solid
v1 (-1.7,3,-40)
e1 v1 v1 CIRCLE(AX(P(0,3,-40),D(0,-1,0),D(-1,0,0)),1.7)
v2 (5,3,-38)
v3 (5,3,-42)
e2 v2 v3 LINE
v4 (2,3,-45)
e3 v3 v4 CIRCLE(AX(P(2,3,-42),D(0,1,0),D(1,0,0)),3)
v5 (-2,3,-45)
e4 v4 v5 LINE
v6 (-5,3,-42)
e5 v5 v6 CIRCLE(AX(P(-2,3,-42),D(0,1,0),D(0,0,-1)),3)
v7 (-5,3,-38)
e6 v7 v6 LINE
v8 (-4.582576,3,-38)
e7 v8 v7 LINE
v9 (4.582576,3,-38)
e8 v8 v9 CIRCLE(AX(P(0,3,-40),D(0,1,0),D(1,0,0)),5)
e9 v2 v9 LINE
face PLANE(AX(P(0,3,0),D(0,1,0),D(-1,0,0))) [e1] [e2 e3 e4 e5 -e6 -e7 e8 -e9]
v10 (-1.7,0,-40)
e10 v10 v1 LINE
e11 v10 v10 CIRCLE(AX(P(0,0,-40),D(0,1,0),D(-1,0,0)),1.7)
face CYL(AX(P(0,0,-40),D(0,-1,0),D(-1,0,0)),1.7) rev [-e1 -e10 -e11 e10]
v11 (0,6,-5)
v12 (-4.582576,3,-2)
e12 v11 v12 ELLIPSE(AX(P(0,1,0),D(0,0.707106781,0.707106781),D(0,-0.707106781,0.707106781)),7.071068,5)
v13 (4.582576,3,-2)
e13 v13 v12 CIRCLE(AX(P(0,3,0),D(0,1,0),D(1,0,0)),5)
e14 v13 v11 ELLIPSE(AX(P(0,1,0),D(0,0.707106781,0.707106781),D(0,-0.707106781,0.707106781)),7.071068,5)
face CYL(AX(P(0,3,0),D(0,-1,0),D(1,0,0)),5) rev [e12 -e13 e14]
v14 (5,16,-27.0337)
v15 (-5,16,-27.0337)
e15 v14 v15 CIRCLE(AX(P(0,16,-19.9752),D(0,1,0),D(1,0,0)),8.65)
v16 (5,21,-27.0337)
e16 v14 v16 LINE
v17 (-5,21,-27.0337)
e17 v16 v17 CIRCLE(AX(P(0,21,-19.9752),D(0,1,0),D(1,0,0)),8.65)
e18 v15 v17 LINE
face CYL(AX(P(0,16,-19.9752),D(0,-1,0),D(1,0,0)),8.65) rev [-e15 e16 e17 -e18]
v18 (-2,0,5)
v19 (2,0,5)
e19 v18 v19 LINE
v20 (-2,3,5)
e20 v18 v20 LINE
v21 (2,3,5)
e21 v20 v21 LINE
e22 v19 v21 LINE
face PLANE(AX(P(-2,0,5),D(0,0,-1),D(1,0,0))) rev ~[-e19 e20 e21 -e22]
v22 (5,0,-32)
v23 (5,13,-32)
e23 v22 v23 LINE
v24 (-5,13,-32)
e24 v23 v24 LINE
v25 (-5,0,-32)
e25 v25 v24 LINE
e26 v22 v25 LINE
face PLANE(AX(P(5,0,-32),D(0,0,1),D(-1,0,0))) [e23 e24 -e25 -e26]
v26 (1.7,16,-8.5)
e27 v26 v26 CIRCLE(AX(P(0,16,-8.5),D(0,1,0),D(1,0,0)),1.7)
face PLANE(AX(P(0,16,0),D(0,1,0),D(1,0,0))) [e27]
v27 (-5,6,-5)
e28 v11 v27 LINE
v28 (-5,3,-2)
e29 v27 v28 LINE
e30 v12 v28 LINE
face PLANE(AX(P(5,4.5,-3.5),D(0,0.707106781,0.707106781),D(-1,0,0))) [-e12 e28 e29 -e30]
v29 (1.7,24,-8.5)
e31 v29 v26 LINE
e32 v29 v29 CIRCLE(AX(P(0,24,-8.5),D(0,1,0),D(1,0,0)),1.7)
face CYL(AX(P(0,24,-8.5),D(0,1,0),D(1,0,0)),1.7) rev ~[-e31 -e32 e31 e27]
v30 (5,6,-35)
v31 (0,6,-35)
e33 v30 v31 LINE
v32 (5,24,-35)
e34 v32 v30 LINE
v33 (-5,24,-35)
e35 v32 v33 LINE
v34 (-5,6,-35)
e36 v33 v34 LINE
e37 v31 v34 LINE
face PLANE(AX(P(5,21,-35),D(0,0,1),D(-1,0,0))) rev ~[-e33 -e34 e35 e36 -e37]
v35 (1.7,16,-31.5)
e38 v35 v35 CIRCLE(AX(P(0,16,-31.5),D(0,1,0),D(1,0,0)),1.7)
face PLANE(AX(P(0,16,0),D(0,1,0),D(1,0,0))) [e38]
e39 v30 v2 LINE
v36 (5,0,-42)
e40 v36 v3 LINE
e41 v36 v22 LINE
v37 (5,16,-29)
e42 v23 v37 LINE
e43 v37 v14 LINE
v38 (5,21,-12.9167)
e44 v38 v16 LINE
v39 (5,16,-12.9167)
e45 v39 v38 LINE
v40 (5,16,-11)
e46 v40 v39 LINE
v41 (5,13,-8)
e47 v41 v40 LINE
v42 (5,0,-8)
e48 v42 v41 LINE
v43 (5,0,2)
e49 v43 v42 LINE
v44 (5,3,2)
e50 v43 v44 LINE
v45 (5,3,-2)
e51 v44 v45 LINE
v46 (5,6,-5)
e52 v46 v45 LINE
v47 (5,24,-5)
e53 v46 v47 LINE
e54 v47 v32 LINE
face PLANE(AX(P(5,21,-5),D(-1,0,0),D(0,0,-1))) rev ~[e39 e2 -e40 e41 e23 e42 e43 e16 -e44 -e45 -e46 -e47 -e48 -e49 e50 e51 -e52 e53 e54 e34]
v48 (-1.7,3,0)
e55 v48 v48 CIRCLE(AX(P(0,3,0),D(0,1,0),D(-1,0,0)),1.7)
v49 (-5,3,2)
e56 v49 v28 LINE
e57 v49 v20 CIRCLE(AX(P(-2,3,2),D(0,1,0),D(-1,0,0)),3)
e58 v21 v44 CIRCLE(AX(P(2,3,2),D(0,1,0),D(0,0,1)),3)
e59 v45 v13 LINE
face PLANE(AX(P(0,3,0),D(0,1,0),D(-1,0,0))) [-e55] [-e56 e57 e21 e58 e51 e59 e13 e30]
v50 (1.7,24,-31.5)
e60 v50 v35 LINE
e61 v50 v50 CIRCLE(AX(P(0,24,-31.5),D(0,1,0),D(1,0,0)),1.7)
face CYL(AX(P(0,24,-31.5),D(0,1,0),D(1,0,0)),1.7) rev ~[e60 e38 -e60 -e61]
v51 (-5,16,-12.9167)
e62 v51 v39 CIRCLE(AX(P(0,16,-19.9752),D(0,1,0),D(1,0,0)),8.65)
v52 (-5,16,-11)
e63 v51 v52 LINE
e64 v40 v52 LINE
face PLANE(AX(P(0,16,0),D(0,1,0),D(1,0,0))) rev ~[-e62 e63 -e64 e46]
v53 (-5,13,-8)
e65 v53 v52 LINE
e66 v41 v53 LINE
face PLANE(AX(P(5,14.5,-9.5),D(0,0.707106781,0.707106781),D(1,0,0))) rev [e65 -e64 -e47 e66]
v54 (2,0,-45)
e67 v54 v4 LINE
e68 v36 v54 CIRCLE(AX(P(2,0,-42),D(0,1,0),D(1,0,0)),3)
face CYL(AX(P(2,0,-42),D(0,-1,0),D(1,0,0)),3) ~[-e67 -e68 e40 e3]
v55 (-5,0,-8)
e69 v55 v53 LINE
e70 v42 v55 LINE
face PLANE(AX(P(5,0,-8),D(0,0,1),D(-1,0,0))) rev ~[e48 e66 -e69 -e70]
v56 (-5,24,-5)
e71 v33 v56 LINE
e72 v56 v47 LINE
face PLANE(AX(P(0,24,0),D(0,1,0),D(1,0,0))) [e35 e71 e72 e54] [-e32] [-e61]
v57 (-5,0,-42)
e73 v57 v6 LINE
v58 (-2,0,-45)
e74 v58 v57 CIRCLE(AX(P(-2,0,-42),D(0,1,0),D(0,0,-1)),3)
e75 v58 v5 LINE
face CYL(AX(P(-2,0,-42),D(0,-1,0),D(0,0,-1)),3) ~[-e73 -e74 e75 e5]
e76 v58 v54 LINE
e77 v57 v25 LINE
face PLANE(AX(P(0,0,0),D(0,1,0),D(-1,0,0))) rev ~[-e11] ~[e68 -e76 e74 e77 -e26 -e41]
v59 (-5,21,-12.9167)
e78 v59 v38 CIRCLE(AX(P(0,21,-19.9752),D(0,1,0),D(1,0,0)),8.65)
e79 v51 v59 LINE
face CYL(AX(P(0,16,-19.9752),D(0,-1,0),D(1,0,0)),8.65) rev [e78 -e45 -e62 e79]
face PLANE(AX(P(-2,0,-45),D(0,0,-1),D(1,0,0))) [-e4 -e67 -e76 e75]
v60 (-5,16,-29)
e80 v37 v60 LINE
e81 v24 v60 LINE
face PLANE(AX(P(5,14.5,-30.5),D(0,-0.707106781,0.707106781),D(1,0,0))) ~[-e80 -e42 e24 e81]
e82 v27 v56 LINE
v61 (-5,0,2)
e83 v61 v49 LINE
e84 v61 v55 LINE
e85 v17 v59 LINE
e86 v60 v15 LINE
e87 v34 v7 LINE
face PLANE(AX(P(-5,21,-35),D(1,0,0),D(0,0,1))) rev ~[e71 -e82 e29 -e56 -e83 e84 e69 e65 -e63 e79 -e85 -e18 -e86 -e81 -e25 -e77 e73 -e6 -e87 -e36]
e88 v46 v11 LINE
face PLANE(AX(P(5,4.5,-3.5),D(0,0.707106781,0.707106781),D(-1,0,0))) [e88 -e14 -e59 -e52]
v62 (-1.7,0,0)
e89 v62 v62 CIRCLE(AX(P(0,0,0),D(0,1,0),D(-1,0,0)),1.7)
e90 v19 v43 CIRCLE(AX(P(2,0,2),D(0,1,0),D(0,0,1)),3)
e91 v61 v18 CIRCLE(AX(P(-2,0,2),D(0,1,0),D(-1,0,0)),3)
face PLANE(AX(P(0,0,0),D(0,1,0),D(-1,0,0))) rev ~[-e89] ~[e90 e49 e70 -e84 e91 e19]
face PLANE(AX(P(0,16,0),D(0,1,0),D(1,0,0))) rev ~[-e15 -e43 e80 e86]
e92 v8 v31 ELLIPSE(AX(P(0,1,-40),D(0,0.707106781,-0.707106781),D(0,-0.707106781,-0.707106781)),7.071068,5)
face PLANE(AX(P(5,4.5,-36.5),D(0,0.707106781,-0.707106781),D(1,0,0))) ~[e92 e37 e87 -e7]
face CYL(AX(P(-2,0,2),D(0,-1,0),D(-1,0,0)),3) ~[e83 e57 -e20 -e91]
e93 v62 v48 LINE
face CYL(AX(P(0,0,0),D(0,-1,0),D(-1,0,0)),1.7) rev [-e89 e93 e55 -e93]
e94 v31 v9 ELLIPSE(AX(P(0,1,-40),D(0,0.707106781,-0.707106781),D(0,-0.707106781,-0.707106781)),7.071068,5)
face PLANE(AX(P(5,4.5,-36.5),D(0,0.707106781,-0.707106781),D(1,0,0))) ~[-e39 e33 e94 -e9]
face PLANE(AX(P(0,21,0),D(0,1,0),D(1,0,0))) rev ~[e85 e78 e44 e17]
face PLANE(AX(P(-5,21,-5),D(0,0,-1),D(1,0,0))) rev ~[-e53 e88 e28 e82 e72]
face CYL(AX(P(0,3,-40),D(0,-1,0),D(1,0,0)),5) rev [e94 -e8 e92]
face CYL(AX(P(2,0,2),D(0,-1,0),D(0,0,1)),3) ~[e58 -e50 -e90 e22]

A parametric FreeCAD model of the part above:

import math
import FreeCAD as App
import Part
import Sketcher
Q = App.Units.Quantity


def edges_at(feature, points):
    """Names of the edges that pass closest to the given points."""
    edges = feature.Shape.Edges
    near = lambda p: min(range(len(edges)), key=lambda i: edges[i].distToShape(Part.Vertex(*p))[0])
    return sorted({f"Edge{near(p) + 1}" for p in points})

doc = App.newDocument("Part")
body = doc.addObject("PartDesign::Body", "Body")
body.AllowCompound = True

sketch1 = doc.addObject("Sketcher::SketchObject", "Sketch")
body.addObject(sketch1)
sketch1.AttachmentSupport = (doc.XZ_Plane, [""])
sketch1.MapMode = "FlatFace"
sketch1.addGeometry(Part.LineSegment(App.Vector(5, 2, 0), App.Vector(5, -5, 0)), False)
sketch1.addGeometry(Part.LineSegment(App.Vector(5, -5, 0), App.Vector(-5, -5, 0)), False)
sketch1.addGeometry(Part.LineSegment(App.Vector(-5, -5, 0), App.Vector(-5, 2, 0)), False)
sketch1.addGeometry(Part.ArcOfCircle(Part.Circle(App.Vector(-2, 2, 0), App.Vector(0, 0, 1), 3), math.radians(90), math.radians(180)), False)
sketch1.addGeometry(Part.LineSegment(App.Vector(-2, 5, 0), App.Vector(2, 5, 0)), False)
sketch1.addGeometry(Part.ArcOfCircle(Part.Circle(App.Vector(2, 2, 0), App.Vector(0, 0, 1), 3), math.radians(0), math.radians(90)), False)
sketch1.addGeometry(Part.Circle(App.Vector(0, 0, 0), App.Vector(0, 0, 1), 1.7), False)
sketch1.addGeometry(Part.LineSegment(App.Vector(-5, -35, 0), App.Vector(5, -35, 0)), False)
sketch1.addGeometry(Part.LineSegment(App.Vector(5, -35, 0), App.Vector(5, -42, 0)), False)
sketch1.addGeometry(Part.ArcOfCircle(Part.Circle(App.Vector(2, -42, 0), App.Vector(0, 0, 1), 3), math.radians(-90), math.radians(0)), False)
sketch1.addGeometry(Part.LineSegment(App.Vector(2, -45, 0), App.Vector(-2, -45, 0)), False)
sketch1.addGeometry(Part.ArcOfCircle(Part.Circle(App.Vector(-2, -42, 0), App.Vector(0, 0, 1), 3), math.radians(180), math.radians(270)), False)
sketch1.addGeometry(Part.LineSegment(App.Vector(-5, -42, 0), App.Vector(-5, -35, 0)), False)
sketch1.addGeometry(Part.Circle(App.Vector(0, -40, 0), App.Vector(0, 0, 1), 1.7), False)
sketch1.addConstraint(Sketcher.Constraint("Coincident", 0, 2, 1, 1))
sketch1.addConstraint(Sketcher.Constraint("Coincident", 1, 2, 2, 1))
sketch1.addConstraint(Sketcher.Constraint("Tangent", 2, 2, 3, 2))
sketch1.addConstraint(Sketcher.Constraint("Tangent", 3, 1, 4, 1))
sketch1.addConstraint(Sketcher.Constraint("Tangent", 4, 2, 5, 2))
sketch1.addConstraint(Sketcher.Constraint("Tangent", 5, 1, 0, 1))
sketch1.addConstraint(Sketcher.Constraint("Coincident", 7, 2, 8, 1))
sketch1.addConstraint(Sketcher.Constraint("Tangent", 8, 2, 9, 2))
sketch1.addConstraint(Sketcher.Constraint("Tangent", 9, 1, 10, 1))
sketch1.addConstraint(Sketcher.Constraint("Tangent", 10, 2, 11, 2))
sketch1.addConstraint(Sketcher.Constraint("Tangent", 11, 1, 12, 1))
sketch1.addConstraint(Sketcher.Constraint("Coincident", 12, 2, 7, 1))
sketch1.addConstraint(Sketcher.Constraint("Vertical", 0))
sketch1.addConstraint(Sketcher.Constraint("Horizontal", 1))
sketch1.addConstraint(Sketcher.Constraint("Vertical", 2))
sketch1.addConstraint(Sketcher.Constraint("Horizontal", 4))
sketch1.addConstraint(Sketcher.Constraint("Horizontal", 7))
sketch1.addConstraint(Sketcher.Constraint("Vertical", 8))
sketch1.addConstraint(Sketcher.Constraint("Horizontal", 10))
sketch1.addConstraint(Sketcher.Constraint("Vertical", 12))
sketch1.addConstraint(Sketcher.Constraint("Coincident", 6, 3, -1, 1))
sketch1.addConstraint(Sketcher.Constraint("Equal", 3, 5))
sketch1.addConstraint(Sketcher.Constraint("Equal", 5, 9))
sketch1.addConstraint(Sketcher.Constraint("Equal", 9, 11))
sketch1.addConstraint(Sketcher.Constraint("Equal", 6, 13))
sketch1.addConstraint(Sketcher.Constraint("PointOnObject", 13, 3, -2))
sketch1.addConstraint(Sketcher.Constraint("Vertical", 5, 3, 9, 3))
sketch1.addConstraint(Sketcher.Constraint("Vertical", 3, 3, 11, 3))
sketch1.addConstraint(Sketcher.Constraint("Equal", 2, 8))
sketch1.addConstraint(Sketcher.Constraint("Radius", 3, Q("3 mm")))
sketch1.addConstraint(Sketcher.Constraint("Diameter", 6, Q("3.4 mm")))
sketch1.addConstraint(Sketcher.Constraint("DistanceX", 1, 2, 1, 1, Q("10 mm")))
sketch1.addConstraint(Sketcher.Constraint("DistanceY", 13, 3, -1, 1, Q("40 mm")))
sketch1.addConstraint(Sketcher.Constraint("DistanceY", 1, 2, 3, 1, Q("10 mm")))
sketch1.addConstraint(Sketcher.Constraint("DistanceX", 3, 3, -1, 1, Q("2 mm")))
sketch1.addConstraint(Sketcher.Constraint("DistanceY", -1, 1, 3, 3, Q("2 mm")))
sketch1.addConstraint(Sketcher.Constraint("DistanceY", 9, 3, -1, 1, Q("42 mm")))
pad1 = doc.addObject("PartDesign::Pad", "Pad")
body.addObject(pad1)
pad1.Profile = sketch1
pad1.Length = 3
pad1.Reversed = True

sketch2 = doc.addObject("Sketcher::SketchObject", "Sketch001")
body.addObject(sketch2)
sketch2.AttachmentSupport = (doc.XZ_Plane, [""])
sketch2.MapMode = "FlatFace"
sketch2.addGeometry(Part.LineSegment(App.Vector(-5, -5, 0), App.Vector(5, -5, 0)), False)
sketch2.addGeometry(Part.LineSegment(App.Vector(5, -5, 0), App.Vector(5, -8, 0)), False)
sketch2.addGeometry(Part.LineSegment(App.Vector(5, -8, 0), App.Vector(-5, -8, 0)), False)
sketch2.addGeometry(Part.LineSegment(App.Vector(-5, -8, 0), App.Vector(-5, -5, 0)), False)
sketch2.addGeometry(Part.LineSegment(App.Vector(-5, -32, 0), App.Vector(5, -32, 0)), False)
sketch2.addGeometry(Part.LineSegment(App.Vector(5, -32, 0), App.Vector(5, -35, 0)), False)
sketch2.addGeometry(Part.LineSegment(App.Vector(5, -35, 0), App.Vector(-5, -35, 0)), False)
sketch2.addGeometry(Part.LineSegment(App.Vector(-5, -35, 0), App.Vector(-5, -32, 0)), False)
sketch2.addConstraint(Sketcher.Constraint("Coincident", 0, 2, 1, 1))
sketch2.addConstraint(Sketcher.Constraint("Coincident", 1, 2, 2, 1))
sketch2.addConstraint(Sketcher.Constraint("Coincident", 2, 2, 3, 1))
sketch2.addConstraint(Sketcher.Constraint("Coincident", 3, 2, 0, 1))
sketch2.addConstraint(Sketcher.Constraint("Coincident", 4, 2, 5, 1))
sketch2.addConstraint(Sketcher.Constraint("Coincident", 5, 2, 6, 1))
sketch2.addConstraint(Sketcher.Constraint("Coincident", 6, 2, 7, 1))
sketch2.addConstraint(Sketcher.Constraint("Coincident", 7, 2, 4, 1))
sketch2.addConstraint(Sketcher.Constraint("Horizontal", 0))
sketch2.addConstraint(Sketcher.Constraint("Vertical", 1))
sketch2.addConstraint(Sketcher.Constraint("Horizontal", 2))
sketch2.addConstraint(Sketcher.Constraint("Vertical", 3))
sketch2.addConstraint(Sketcher.Constraint("Horizontal", 4))
sketch2.addConstraint(Sketcher.Constraint("Vertical", 5))
sketch2.addConstraint(Sketcher.Constraint("Horizontal", 6))
sketch2.addConstraint(Sketcher.Constraint("Vertical", 7))
sketch2.addConstraint(Sketcher.Constraint("Vertical", 1, 2, 4, 2))
sketch2.addConstraint(Sketcher.Constraint("Vertical", 3, 2, 6, 2))
sketch2.addConstraint(Sketcher.Constraint("Equal", 3, 5))
sketch2.addConstraint(Sketcher.Constraint("DistanceX", 0, 1, 0, 2, Q("10 mm")))
sketch2.addConstraint(Sketcher.Constraint("DistanceY", 1, 2, 1, 1, Q("3 mm")))
sketch2.addConstraint(Sketcher.Constraint("DistanceX", -1, 1, 0, 2, Q("5 mm")))
sketch2.addConstraint(Sketcher.Constraint("DistanceY", 0, 2, -1, 1, Q("5 mm")))
sketch2.addConstraint(Sketcher.Constraint("DistanceY", 4, 2, -1, 1, Q("32 mm")))
pad2 = doc.addObject("PartDesign::Pad", "Pad001")
body.addObject(pad2)
pad2.Profile = sketch2
pad2.Length = 16
pad2.Reversed = True

sketch3 = doc.addObject("Sketcher::SketchObject", "Sketch002")
body.addObject(sketch3)
sketch3.AttachmentSupport = (doc.XZ_Plane, [""])
sketch3.MapMode = "FlatFace"
sketch3.AttachmentOffset = App.Placement(App.Vector(0, 0, -16), App.Rotation())
sketch3.addGeometry(Part.LineSegment(App.Vector(-5, -35, 0), App.Vector(-5, -27, 0)), False)
sketch3.addGeometry(Part.ArcOfCircle(Part.Circle(App.Vector(0, -20, 0), App.Vector(0, 0, 1), 9), math.radians(-125), math.radians(-55)), False)
sketch3.addGeometry(Part.LineSegment(App.Vector(5, -27, 0), App.Vector(5, -35, 0)), False)
sketch3.addGeometry(Part.LineSegment(App.Vector(5, -35, 0), App.Vector(-5, -35, 0)), False)
sketch3.addGeometry(Part.ArcOfCircle(Part.Circle(App.Vector(0, -20, 0), App.Vector(0, 0, 1), 9), math.radians(55), math.radians(125)), False)
sketch3.addGeometry(Part.LineSegment(App.Vector(-5, -13, 0), App.Vector(-5, -5, 0)), False)
sketch3.addGeometry(Part.LineSegment(App.Vector(-5, -5, 0), App.Vector(5, -5, 0)), False)
sketch3.addGeometry(Part.LineSegment(App.Vector(5, -5, 0), App.Vector(5, -13, 0)), False)
sketch3.addConstraint(Sketcher.Constraint("Coincident", 0, 2, 1, 1))
sketch3.addConstraint(Sketcher.Constraint("Coincident", 1, 2, 2, 1))
sketch3.addConstraint(Sketcher.Constraint("Coincident", 2, 2, 3, 1))
sketch3.addConstraint(Sketcher.Constraint("Coincident", 3, 2, 0, 1))
sketch3.addConstraint(Sketcher.Constraint("Coincident", 4, 2, 5, 1))
sketch3.addConstraint(Sketcher.Constraint("Coincident", 5, 2, 6, 1))
sketch3.addConstraint(Sketcher.Constraint("Coincident", 6, 2, 7, 1))
sketch3.addConstraint(Sketcher.Constraint("Coincident", 7, 2, 4, 1))
sketch3.addConstraint(Sketcher.Constraint("Vertical", 0))
sketch3.addConstraint(Sketcher.Constraint("Vertical", 2))
sketch3.addConstraint(Sketcher.Constraint("Horizontal", 3))
sketch3.addConstraint(Sketcher.Constraint("Vertical", 5))
sketch3.addConstraint(Sketcher.Constraint("Horizontal", 6))
sketch3.addConstraint(Sketcher.Constraint("Vertical", 7))
sketch3.addConstraint(Sketcher.Constraint("Coincident", 4, 3, 1, 3))
sketch3.addConstraint(Sketcher.Constraint("Equal", 1, 4))
sketch3.addConstraint(Sketcher.Constraint("Symmetric", 0, 2, 1, 2, -2))
sketch3.addConstraint(Sketcher.Constraint("Horizontal", 4, 2, 7, 2))
sketch3.addConstraint(Sketcher.Constraint("Vertical", 3, 2, 4, 2))
sketch3.addConstraint(Sketcher.Constraint("Radius", 1, Q("8.65 mm")))
sketch3.addConstraint(Sketcher.Constraint("DistanceX", 3, 2, 3, 1, Q("10 mm")))
sketch3.addConstraint(Sketcher.Constraint("DistanceY", 2, 2, -1, 1, Q("35 mm")))
sketch3.addConstraint(Sketcher.Constraint("DistanceY", 5, 2, -1, 1, Q("5 mm")))
sketch3.addConstraint(Sketcher.Constraint("DistanceY", 0, 1, 0, 2, Q("7.9663 mm")))
pad3 = doc.addObject("PartDesign::Pad", "Pad002")
body.addObject(pad3)
pad3.Profile = sketch3
pad3.Length = 5
pad3.Reversed = True

sketch4 = doc.addObject("Sketcher::SketchObject", "Sketch003")
body.addObject(sketch4)
sketch4.AttachmentSupport = (doc.XZ_Plane, [""])
sketch4.MapMode = "FlatFace"
sketch4.AttachmentOffset = App.Placement(App.Vector(0, 0, -21), App.Rotation())
sketch4.addGeometry(Part.LineSegment(App.Vector(-5, -35, 0), App.Vector(-5, -5, 0)), False)
sketch4.addGeometry(Part.LineSegment(App.Vector(-5, -5, 0), App.Vector(5, -5, 0)), False)
sketch4.addGeometry(Part.LineSegment(App.Vector(5, -5, 0), App.Vector(5, -35, 0)), False)
sketch4.addGeometry(Part.LineSegment(App.Vector(5, -35, 0), App.Vector(-5, -35, 0)), False)
sketch4.addConstraint(Sketcher.Constraint("Coincident", 0, 2, 1, 1))
sketch4.addConstraint(Sketcher.Constraint("Coincident", 1, 2, 2, 1))
sketch4.addConstraint(Sketcher.Constraint("Coincident", 2, 2, 3, 1))
sketch4.addConstraint(Sketcher.Constraint("Coincident", 3, 2, 0, 1))
sketch4.addConstraint(Sketcher.Constraint("Vertical", 0))
sketch4.addConstraint(Sketcher.Constraint("Horizontal", 1))
sketch4.addConstraint(Sketcher.Constraint("Vertical", 2))
sketch4.addConstraint(Sketcher.Constraint("Horizontal", 3))
sketch4.addConstraint(Sketcher.Constraint("DistanceX", 1, 1, 1, 2, Q("10 mm")))
sketch4.addConstraint(Sketcher.Constraint("DistanceY", 0, 1, 0, 2, Q("30 mm")))
sketch4.addConstraint(Sketcher.Constraint("DistanceX", 0, 2, -1, 1, Q("5 mm")))
sketch4.addConstraint(Sketcher.Constraint("DistanceY", 0, 2, -1, 1, Q("5 mm")))
pad4 = doc.addObject("PartDesign::Pad", "Pad003")
body.addObject(pad4)
pad4.Profile = sketch4
pad4.Length = 3
pad4.Reversed = True
doc.recompute()

chamfer = doc.addObject("PartDesign::Chamfer", "Chamfer")
body.addObject(chamfer)
chamfer.Base = (pad4, edges_at(pad4, [
    (0, 16, -8),
    (0, 16, -32),
    (0, 3, -35),
    (0, 3, -5),
]))
chamfer.Size = 3

sketch5 = doc.addObject("Sketcher::SketchObject", "Sketch004")
body.addObject(sketch5)
sketch5.AttachmentSupport = (doc.XZ_Plane, [""])
sketch5.MapMode = "FlatFace"
sketch5.AttachmentOffset = App.Placement(App.Vector(0, 0, -24), App.Rotation())
sketch5.addGeometry(Part.Circle(App.Vector(0, -31.5, 0), App.Vector(0, 0, 1), 1.7), False)
sketch5.addGeometry(Part.Circle(App.Vector(0, -8.5, 0), App.Vector(0, 0, 1), 1.7), False)
sketch5.addConstraint(Sketcher.Constraint("Equal", 0, 1))
sketch5.addConstraint(Sketcher.Constraint("PointOnObject", 0, 3, -2))
sketch5.addConstraint(Sketcher.Constraint("PointOnObject", 1, 3, -2))
sketch5.addConstraint(Sketcher.Constraint("Diameter", 0, Q("3.4 mm")))
sketch5.addConstraint(Sketcher.Constraint("DistanceY", 0, 3, 1, 3, Q("23 mm")))
sketch5.addConstraint(Sketcher.Constraint("DistanceY", 0, 3, -1, 1, Q("31.5 mm")))
pocket1 = doc.addObject("PartDesign::Pocket", "Pocket")
body.addObject(pocket1)
pocket1.Profile = sketch5
pocket1.Length = 8
pocket1.Reversed = True

sketch6 = doc.addObject("Sketcher::SketchObject", "Sketch005")
body.addObject(sketch6)
sketch6.AttachmentSupport = (doc.XZ_Plane, [""])
sketch6.MapMode = "FlatFace"
sketch6.AttachmentOffset = App.Placement(App.Vector(0, 0, -3), App.Rotation())
sketch6.addGeometry(Part.Circle(App.Vector(0, 0, 0), App.Vector(0, 0, 1), 5), False)
sketch6.addGeometry(Part.Circle(App.Vector(0, -40, 0), App.Vector(0, 0, 1), 5), False)
sketch6.addGeometry(Part.Circle(App.Vector(0, -40, 0), App.Vector(0, 0, 1), 1.7), False)
sketch6.addConstraint(Sketcher.Constraint("Coincident", 0, 3, -1, 1))
sketch6.addConstraint(Sketcher.Constraint("Coincident", 2, 3, 1, 3))
sketch6.addConstraint(Sketcher.Constraint("Equal", 0, 1))
sketch6.addConstraint(Sketcher.Constraint("PointOnObject", 1, 3, -2))
sketch6.addConstraint(Sketcher.Constraint("Diameter", 0, Q("10 mm")))
sketch6.addConstraint(Sketcher.Constraint("Diameter", 2, Q("3.4 mm")))
sketch6.addConstraint(Sketcher.Constraint("DistanceY", 1, 3, -1, 1, Q("40 mm")))
pocket2 = doc.addObject("PartDesign::Pocket", "Pocket001")
body.addObject(pocket2)
pocket2.Profile = sketch6
pocket2.Length = 10

doc.recompute()
